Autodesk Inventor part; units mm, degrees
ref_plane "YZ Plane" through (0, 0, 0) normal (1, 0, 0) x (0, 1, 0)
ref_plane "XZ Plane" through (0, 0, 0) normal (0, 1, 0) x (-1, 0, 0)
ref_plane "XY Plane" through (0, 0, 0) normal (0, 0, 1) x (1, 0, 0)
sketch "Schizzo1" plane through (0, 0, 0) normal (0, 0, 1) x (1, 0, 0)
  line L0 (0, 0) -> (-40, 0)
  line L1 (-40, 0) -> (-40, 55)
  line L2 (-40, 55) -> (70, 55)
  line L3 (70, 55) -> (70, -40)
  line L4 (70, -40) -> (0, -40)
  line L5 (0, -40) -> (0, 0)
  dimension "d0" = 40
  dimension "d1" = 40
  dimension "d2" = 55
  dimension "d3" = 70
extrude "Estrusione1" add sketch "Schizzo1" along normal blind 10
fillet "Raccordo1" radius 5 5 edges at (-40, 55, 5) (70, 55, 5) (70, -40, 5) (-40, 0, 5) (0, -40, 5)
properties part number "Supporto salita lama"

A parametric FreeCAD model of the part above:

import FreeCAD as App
import Part
import Sketcher

V = App.Vector


def edges_at(feature, points):
    """Names of the edges that pass closest to the given points."""
    edges = feature.Shape.Edges
    near = lambda p: min(range(len(edges)), key=lambda i: edges[i].distToShape(Part.Vertex(*p))[0])
    return sorted({f"Edge{near(p) + 1}" for p in points})

doc = App.newDocument("Part")
params = doc.addObject("Spreadsheet::Sheet", "Params")
for row, (alias, value) in enumerate([
    ("sketch1_width", "40 mm"),
    ("sketch1_width2", "70 mm"),
    ("sketch1_height", "55 mm"),
    ("pad1_length", "10 mm"),
    ("fillet_radius", "5 mm"),
], start=1):
    params.set(f"A{row}", alias)
    params.set(f"B{row}", "=" + value)
    params.setAlias(f"B{row}", alias)

body = doc.addObject("PartDesign::Body", "Body")

sketch1 = body.newObject("Sketcher::SketchObject", "Sketch")
sketch1.AttachmentSupport = (doc.getObject("XY_Plane"), [""])
sketch1.MapMode = "FlatFace"
sketch1.addGeometry([
    Part.LineSegment(V(-40, 0, 0), V(0, 0, 0)),
    Part.LineSegment(V(0, 0, 0), V(0, -40, 0)),
    Part.LineSegment(V(0, -40, 0), V(70, -40, 0)),
    Part.LineSegment(V(70, -40, 0), V(70, 55, 0)),
    Part.LineSegment(V(70, 55, 0), V(-40, 55, 0)),
    Part.LineSegment(V(-40, 55, 0), V(-40, 0, 0)),
], False)
sketch1.addConstraint([
    Sketcher.Constraint("Coincident", 0, 2, 1, 1),
    Sketcher.Constraint("Coincident", 1, 2, 2, 1),
    Sketcher.Constraint("Coincident", 2, 2, 3, 1),
    Sketcher.Constraint("Coincident", 3, 2, 4, 1),
    Sketcher.Constraint("Coincident", 4, 2, 5, 1),
    Sketcher.Constraint("Coincident", 5, 2, 0, 1),
    Sketcher.Constraint("Horizontal", 0),
    Sketcher.Constraint("Vertical", 1),
    Sketcher.Constraint("Horizontal", 2),
    Sketcher.Constraint("Vertical", 3),
    Sketcher.Constraint("Horizontal", 4),
    Sketcher.Constraint("Vertical", 5),
    Sketcher.Constraint("Coincident", 0, 2, -1, 1),
    Sketcher.Constraint("Equal", 0, 1),
    Sketcher.Constraint("DistanceX", 0, 1, 0, 2, 40.0),
    Sketcher.Constraint("DistanceX", 2, 1, 2, 2, 70.0),
    Sketcher.Constraint("DistanceY", 5, 2, 5, 1, 55.0),
])
sketch1.setExpression("Constraints[14]", "Params.sketch1_width")
sketch1.setExpression("Constraints[15]", "Params.sketch1_width2")
sketch1.setExpression("Constraints[16]", "Params.sketch1_height")
pad1 = body.newObject("PartDesign::Pad", "Pad")
pad1.Profile = sketch1
pad1.setExpression("Length", "Params.pad1_length")
doc.recompute()

fillet = body.newObject("PartDesign::Fillet", "Fillet")
fillet.Base = (pad1, edges_at(pad1, [
    (-40, 55, 5),
    (70, 55, 5),
    (70, -40, 5),
    (-40, 0, 5),
    (0, -40, 5),
]))
fillet.setExpression("Radius", "Params.fillet_radius")

doc.recompute()
